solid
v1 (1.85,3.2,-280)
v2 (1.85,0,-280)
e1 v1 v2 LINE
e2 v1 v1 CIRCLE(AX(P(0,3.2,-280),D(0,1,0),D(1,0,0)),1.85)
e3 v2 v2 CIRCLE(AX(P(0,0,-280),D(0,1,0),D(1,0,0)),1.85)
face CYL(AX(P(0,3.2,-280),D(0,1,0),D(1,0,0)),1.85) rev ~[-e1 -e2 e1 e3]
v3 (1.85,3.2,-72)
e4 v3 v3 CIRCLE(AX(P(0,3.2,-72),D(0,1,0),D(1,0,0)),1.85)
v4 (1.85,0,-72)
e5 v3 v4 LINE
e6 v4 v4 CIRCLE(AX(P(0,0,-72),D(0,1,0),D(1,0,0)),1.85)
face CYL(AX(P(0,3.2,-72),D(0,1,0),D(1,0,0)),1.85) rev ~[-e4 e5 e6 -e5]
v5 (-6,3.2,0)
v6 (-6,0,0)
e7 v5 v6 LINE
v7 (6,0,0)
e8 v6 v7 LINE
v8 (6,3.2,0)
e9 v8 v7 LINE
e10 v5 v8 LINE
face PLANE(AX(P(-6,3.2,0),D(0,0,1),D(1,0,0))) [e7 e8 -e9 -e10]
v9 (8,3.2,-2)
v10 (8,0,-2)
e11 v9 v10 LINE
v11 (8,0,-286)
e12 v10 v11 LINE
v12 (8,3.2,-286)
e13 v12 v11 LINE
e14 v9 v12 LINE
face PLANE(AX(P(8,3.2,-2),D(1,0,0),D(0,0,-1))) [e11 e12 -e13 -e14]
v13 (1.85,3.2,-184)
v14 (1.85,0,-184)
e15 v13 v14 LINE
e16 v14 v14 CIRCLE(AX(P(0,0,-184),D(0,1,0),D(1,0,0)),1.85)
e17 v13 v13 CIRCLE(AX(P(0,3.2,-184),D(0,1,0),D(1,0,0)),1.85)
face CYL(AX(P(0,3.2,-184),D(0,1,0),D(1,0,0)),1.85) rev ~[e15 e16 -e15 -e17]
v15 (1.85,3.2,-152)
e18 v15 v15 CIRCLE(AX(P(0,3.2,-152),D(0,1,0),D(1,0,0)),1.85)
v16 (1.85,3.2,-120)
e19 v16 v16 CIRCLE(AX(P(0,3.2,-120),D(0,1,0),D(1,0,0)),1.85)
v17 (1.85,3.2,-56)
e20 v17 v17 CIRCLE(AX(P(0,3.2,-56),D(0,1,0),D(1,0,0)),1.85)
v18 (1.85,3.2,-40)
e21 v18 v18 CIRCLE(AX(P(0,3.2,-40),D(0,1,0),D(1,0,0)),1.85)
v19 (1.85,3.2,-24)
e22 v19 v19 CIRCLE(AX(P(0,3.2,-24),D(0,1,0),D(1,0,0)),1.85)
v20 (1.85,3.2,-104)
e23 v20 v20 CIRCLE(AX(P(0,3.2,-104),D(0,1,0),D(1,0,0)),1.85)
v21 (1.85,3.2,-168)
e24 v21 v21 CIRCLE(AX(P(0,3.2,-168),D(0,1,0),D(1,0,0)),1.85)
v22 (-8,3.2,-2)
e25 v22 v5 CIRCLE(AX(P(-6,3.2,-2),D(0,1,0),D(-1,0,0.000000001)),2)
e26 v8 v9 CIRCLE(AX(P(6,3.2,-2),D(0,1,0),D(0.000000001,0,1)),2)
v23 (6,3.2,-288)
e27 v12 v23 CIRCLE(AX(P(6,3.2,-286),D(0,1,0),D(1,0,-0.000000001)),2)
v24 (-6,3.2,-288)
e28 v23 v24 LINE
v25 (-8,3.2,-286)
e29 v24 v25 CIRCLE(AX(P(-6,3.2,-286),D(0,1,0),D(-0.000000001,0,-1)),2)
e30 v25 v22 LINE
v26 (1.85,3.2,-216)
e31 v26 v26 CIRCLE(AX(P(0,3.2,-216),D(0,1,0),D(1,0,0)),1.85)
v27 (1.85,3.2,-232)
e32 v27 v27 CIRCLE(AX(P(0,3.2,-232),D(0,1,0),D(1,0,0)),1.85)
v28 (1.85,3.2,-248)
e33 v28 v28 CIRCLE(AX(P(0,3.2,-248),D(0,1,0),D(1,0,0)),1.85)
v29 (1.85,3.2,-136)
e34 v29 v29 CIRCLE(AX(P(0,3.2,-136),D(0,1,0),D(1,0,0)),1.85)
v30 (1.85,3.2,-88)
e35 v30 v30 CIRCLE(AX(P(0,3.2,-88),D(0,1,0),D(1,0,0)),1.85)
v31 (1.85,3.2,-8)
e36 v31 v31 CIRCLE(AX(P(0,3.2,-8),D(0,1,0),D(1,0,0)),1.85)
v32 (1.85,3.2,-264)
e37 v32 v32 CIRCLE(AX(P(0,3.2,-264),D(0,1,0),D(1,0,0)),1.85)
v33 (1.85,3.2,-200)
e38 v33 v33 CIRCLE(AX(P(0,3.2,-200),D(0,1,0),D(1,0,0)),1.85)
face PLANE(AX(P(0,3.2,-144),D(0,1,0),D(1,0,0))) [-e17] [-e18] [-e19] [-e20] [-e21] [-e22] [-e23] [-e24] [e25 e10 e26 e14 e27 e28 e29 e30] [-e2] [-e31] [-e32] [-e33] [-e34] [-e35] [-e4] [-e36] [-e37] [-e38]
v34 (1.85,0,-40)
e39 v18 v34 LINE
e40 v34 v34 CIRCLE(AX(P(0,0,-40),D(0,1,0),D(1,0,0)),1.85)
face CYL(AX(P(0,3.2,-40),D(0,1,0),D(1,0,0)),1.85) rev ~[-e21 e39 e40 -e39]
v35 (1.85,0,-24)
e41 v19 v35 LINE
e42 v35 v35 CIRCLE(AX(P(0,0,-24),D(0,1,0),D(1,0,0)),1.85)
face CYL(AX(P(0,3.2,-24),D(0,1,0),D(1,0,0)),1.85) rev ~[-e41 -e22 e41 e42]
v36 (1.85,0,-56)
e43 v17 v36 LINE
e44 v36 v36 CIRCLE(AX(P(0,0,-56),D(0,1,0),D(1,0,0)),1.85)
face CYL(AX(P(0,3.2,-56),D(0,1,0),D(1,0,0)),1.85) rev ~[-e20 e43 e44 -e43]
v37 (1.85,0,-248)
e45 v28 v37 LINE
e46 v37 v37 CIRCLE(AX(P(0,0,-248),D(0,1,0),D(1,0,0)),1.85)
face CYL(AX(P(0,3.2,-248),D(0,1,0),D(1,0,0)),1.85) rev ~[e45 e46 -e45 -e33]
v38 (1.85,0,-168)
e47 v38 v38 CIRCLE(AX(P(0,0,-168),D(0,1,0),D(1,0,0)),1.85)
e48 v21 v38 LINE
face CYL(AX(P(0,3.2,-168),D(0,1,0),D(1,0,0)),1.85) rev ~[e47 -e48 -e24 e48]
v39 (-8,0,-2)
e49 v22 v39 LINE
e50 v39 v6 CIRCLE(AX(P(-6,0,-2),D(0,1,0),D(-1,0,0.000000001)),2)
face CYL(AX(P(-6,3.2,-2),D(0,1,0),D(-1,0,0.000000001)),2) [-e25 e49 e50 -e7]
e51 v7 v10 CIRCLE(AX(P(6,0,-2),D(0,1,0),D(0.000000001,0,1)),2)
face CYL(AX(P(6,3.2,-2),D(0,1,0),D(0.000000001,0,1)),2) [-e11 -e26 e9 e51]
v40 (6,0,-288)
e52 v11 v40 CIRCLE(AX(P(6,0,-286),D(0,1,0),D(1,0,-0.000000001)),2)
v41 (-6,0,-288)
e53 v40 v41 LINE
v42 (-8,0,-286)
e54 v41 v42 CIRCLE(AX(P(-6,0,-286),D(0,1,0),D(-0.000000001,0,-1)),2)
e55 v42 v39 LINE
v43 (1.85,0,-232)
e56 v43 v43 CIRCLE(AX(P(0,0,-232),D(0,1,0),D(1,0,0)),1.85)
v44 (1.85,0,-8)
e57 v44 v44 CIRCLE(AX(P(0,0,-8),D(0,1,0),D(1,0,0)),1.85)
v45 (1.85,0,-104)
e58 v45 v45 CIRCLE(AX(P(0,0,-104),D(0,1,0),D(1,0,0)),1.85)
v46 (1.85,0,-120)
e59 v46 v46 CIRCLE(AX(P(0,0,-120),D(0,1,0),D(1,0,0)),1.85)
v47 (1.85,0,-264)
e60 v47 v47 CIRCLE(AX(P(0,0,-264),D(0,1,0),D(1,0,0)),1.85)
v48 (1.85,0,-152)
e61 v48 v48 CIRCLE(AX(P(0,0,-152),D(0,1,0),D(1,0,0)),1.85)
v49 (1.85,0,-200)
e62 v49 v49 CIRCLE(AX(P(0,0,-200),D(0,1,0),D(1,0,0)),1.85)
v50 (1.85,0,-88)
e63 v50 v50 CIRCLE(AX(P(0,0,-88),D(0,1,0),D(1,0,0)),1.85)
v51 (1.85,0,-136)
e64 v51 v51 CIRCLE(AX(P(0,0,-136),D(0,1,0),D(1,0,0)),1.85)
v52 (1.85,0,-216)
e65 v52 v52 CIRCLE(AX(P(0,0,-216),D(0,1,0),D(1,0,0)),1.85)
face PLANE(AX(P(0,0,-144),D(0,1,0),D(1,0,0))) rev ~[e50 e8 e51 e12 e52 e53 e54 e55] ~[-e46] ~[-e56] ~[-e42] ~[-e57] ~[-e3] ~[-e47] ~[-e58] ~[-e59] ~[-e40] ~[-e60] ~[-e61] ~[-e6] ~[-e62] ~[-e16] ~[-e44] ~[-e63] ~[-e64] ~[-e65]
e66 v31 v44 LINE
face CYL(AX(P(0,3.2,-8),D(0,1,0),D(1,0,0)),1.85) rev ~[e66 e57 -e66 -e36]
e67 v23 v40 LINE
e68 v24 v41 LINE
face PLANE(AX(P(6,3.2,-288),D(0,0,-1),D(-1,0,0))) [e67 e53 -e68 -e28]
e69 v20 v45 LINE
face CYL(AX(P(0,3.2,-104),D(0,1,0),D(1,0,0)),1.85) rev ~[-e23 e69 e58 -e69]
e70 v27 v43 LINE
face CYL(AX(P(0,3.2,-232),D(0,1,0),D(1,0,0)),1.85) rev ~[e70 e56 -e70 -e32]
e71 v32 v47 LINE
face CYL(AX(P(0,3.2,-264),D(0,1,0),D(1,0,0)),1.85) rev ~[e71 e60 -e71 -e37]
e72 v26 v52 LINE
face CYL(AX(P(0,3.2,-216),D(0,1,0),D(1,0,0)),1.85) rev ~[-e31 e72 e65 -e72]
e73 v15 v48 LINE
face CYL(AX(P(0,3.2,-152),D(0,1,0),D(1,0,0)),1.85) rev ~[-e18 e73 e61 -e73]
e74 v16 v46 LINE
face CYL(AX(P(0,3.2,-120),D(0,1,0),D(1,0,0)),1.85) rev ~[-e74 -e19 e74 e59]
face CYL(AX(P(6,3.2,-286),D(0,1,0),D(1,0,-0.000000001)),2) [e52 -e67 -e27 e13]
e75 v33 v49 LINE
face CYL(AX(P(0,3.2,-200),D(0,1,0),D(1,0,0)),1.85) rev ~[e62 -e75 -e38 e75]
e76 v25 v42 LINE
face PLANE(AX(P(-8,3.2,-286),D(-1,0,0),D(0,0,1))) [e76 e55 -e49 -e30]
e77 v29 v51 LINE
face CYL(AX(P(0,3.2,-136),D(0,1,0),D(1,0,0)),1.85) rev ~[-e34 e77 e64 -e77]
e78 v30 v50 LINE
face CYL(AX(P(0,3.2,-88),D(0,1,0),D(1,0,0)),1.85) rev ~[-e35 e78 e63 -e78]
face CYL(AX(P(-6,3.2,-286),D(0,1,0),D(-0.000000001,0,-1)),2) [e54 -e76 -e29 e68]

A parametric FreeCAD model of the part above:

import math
import FreeCAD as App
import Part
import Sketcher

V = App.Vector
Q = App.Units.Quantity

doc = App.newDocument("Part")
params = doc.addObject("Spreadsheet::Sheet", "Params")
for row, (alias, value) in enumerate([
    ("sketch1_radius", "2 mm"),
    ("sketch1_diameter", "3.7 mm"),
    ("sketch1_width", "12 mm"),
    ("sketch1_height", "284 mm"),
    ("pad1_length", "3.2 mm"),
], start=1):
    params.set(f"A{row}", alias)
    params.set(f"B{row}", "=" + value)
    params.setAlias(f"B{row}", alias)

body = doc.addObject("PartDesign::Body", "Body")

# Sketch on XZ plane
sketch1 = doc.addObject("Sketcher::SketchObject", "Sketch")
body.addObject(sketch1)
sketch1.AttachmentSupport = (doc.XZ_Plane, [""])
sketch1.MapMode = "FlatFace"
sketch1.AttachmentOffset = App.Placement(V(0, 0, -3.2), App.Rotation())
sketch1.addGeometry([
    Part.LineSegment(V(8, -2, 0), V(8, -286, 0)),  # 0
    Part.ArcOfCircle(Part.Circle(V(6, -286, 0), V(0, 0, 1), 2), math.radians(-90), math.radians(0)),  # 1
    Part.LineSegment(V(6, -288, 0), V(-6, -288, 0)),  # 2
    Part.ArcOfCircle(Part.Circle(V(-6, -286, 0), V(0, 0, 1), 2), math.radians(-180), math.radians(-90)),  # 3
    Part.LineSegment(V(-8, -286, 0), V(-8, -2, 0)),  # 4
    Part.ArcOfCircle(Part.Circle(V(-6, -2, 0), V(0, 0, 1), 2), math.radians(90), math.radians(180)),  # 5
    Part.LineSegment(V(-6, 0, 0), V(6, 0, 0)),  # 6
    Part.ArcOfCircle(Part.Circle(V(6, -2, 0), V(0, 0, 1), 2), math.radians(0), math.radians(90)),  # 7
    Part.Circle(V(0, -8, 0), V(0, 0, 1), 1.9),  # 8
    Part.Circle(V(0, -24, 0), V(0, 0, 1), 1.9),  # 9
    Part.Circle(V(0, -40, 0), V(0, 0, 1), 1.9),  # 10
    Part.Circle(V(0, -56, 0), V(0, 0, 1), 1.9),  # 11
    Part.Circle(V(0, -72, 0), V(0, 0, 1), 1.9),  # 12
    Part.Circle(V(0, -88, 0), V(0, 0, 1), 1.9),  # 13
    Part.Circle(V(0, -104, 0), V(0, 0, 1), 1.9),  # 14
    Part.Circle(V(0, -120, 0), V(0, 0, 1), 1.9),  # 15
    Part.Circle(V(0, -136, 0), V(0, 0, 1), 1.9),  # 16
    Part.Circle(V(0, -152, 0), V(0, 0, 1), 1.9),  # 17
    Part.Circle(V(0, -168, 0), V(0, 0, 1), 1.9),  # 18
    Part.Circle(V(0, -184, 0), V(0, 0, 1), 1.9),  # 19
    Part.Circle(V(0, -200, 0), V(0, 0, 1), 1.9),  # 20
    Part.Circle(V(0, -216, 0), V(0, 0, 1), 1.9),  # 21
    Part.Circle(V(0, -232, 0), V(0, 0, 1), 1.9),  # 22
    Part.Circle(V(0, -248, 0), V(0, 0, 1), 1.9),  # 23
    Part.Circle(V(0, -264, 0), V(0, 0, 1), 1.9),  # 24
    Part.Circle(V(0, -280, 0), V(0, 0, 1), 1.9),  # 25
], False)
sketch1.addConstraint([
    Sketcher.Constraint("Tangent", 0, 2, 1, 2),
    Sketcher.Constraint("Tangent", 1, 1, 2, 1),
    Sketcher.Constraint("Tangent", 2, 2, 3, 2),
    Sketcher.Constraint("Tangent", 3, 1, 4, 1),
    Sketcher.Constraint("Tangent", 4, 2, 5, 2),
    Sketcher.Constraint("Tangent", 5, 1, 6, 1),
    Sketcher.Constraint("Tangent", 6, 2, 7, 2),
    Sketcher.Constraint("Tangent", 7, 1, 0, 1),
    Sketcher.Constraint("Vertical", 0),
    Sketcher.Constraint("Horizontal", 2),
    Sketcher.Constraint("Vertical", 4),
    Sketcher.Constraint("Horizontal", 6),
    Sketcher.Constraint("Equal", 1, 3),
    Sketcher.Constraint("Equal", 3, 5),
    Sketcher.Constraint("Equal", 5, 7),
    Sketcher.Constraint("Equal", 8, 9),
    Sketcher.Constraint("Equal", 9, 10),
    Sketcher.Constraint("Equal", 10, 11),
    Sketcher.Constraint("Equal", 11, 12),
    Sketcher.Constraint("Equal", 12, 13),
    Sketcher.Constraint("Equal", 13, 14),
    Sketcher.Constraint("Equal", 14, 15),
    Sketcher.Constraint("Equal", 15, 16),
    Sketcher.Constraint("Equal", 16, 17),
    Sketcher.Constraint("Equal", 17, 18),
    Sketcher.Constraint("Equal", 18, 19),
    Sketcher.Constraint("Equal", 19, 20),
    Sketcher.Constraint("Equal", 20, 21),
    Sketcher.Constraint("Equal", 21, 22),
    Sketcher.Constraint("Equal", 22, 23),
    Sketcher.Constraint("Equal", 23, 24),
    Sketcher.Constraint("Equal", 24, 25),
    Sketcher.Constraint("Symmetric", 5, 1, 6, 2, -1, 1),
    Sketcher.Constraint("PointOnObject", 8, 3, -2),
    Sketcher.Constraint("PointOnObject", 9, 3, -2),
    Sketcher.Constraint("PointOnObject", 10, 3, -2),
    Sketcher.Constraint("PointOnObject", 11, 3, -2),
    Sketcher.Constraint("PointOnObject", 12, 3, -2),
    Sketcher.Constraint("PointOnObject", 13, 3, -2),
    Sketcher.Constraint("PointOnObject", 14, 3, -2),
    Sketcher.Constraint("PointOnObject", 15, 3, -2),
    Sketcher.Constraint("PointOnObject", 16, 3, -2),
    Sketcher.Constraint("PointOnObject", 17, 3, -2),
    Sketcher.Constraint("PointOnObject", 18, 3, -2),
    Sketcher.Constraint("PointOnObject", 19, 3, -2),
    Sketcher.Constraint("PointOnObject", 20, 3, -2),
    Sketcher.Constraint("PointOnObject", 21, 3, -2),
    Sketcher.Constraint("PointOnObject", 22, 3, -2),
    Sketcher.Constraint("PointOnObject", 23, 3, -2),
    Sketcher.Constraint("PointOnObject", 24, 3, -2),
    Sketcher.Constraint("PointOnObject", 25, 3, -2),
    Sketcher.Constraint("Radius", 1, Q("2 mm")),
    Sketcher.Constraint("Diameter", 8, Q("3.7 mm")),
    Sketcher.Constraint("DistanceX", 2, 2, 2, 1, Q("12 mm")),
    Sketcher.Constraint("DistanceY", 0, 2, 0, 1, Q("284 mm")),
    Sketcher.Constraint("DistanceY", 8, 3, -1, 1, Q("8 mm")),
    Sketcher.Constraint("DistanceY", 9, 3, -1, 1, Q("24 mm")),
    Sketcher.Constraint("DistanceY", 10, 3, -1, 1, Q("40 mm")),
    Sketcher.Constraint("DistanceY", 11, 3, -1, 1, Q("56 mm")),
    Sketcher.Constraint("DistanceY", 12, 3, -1, 1, Q("72 mm")),
    Sketcher.Constraint("DistanceY", 13, 3, -1, 1, Q("88 mm")),
    Sketcher.Constraint("DistanceY", 14, 3, -1, 1, Q("104 mm")),
    Sketcher.Constraint("DistanceY", 15, 3, -1, 1, Q("120 mm")),
    Sketcher.Constraint("DistanceY", 16, 3, -1, 1, Q("136 mm")),
    Sketcher.Constraint("DistanceY", 17, 3, -1, 1, Q("152 mm")),
    Sketcher.Constraint("DistanceY", 18, 3, -1, 1, Q("168 mm")),
    Sketcher.Constraint("DistanceY", 19, 3, -1, 1, Q("184 mm")),
    Sketcher.Constraint("DistanceY", 20, 3, -1, 1, Q("200 mm")),
    Sketcher.Constraint("DistanceY", 21, 3, -1, 1, Q("216 mm")),
    Sketcher.Constraint("DistanceY", 22, 3, -1, 1, Q("232 mm")),
    Sketcher.Constraint("DistanceY", 23, 3, -1, 1, Q("248 mm")),
    Sketcher.Constraint("DistanceY", 24, 3, -1, 1, Q("264 mm")),
    Sketcher.Constraint("DistanceY", 25, 3, -1, 1, Q("280 mm")),
])
sketch1.setExpression("Constraints[51]", "Params.sketch1_radius")
sketch1.setExpression("Constraints[52]", "Params.sketch1_diameter")
sketch1.setExpression("Constraints[53]", "Params.sketch1_width")
sketch1.setExpression("Constraints[54]", "Params.sketch1_height")
pad1 = doc.addObject("PartDesign::Pad", "Pad")
body.addObject(pad1)
pad1.Profile = sketch1
pad1.setExpression("Length", "Params.pad1_length")

doc.recompute()
